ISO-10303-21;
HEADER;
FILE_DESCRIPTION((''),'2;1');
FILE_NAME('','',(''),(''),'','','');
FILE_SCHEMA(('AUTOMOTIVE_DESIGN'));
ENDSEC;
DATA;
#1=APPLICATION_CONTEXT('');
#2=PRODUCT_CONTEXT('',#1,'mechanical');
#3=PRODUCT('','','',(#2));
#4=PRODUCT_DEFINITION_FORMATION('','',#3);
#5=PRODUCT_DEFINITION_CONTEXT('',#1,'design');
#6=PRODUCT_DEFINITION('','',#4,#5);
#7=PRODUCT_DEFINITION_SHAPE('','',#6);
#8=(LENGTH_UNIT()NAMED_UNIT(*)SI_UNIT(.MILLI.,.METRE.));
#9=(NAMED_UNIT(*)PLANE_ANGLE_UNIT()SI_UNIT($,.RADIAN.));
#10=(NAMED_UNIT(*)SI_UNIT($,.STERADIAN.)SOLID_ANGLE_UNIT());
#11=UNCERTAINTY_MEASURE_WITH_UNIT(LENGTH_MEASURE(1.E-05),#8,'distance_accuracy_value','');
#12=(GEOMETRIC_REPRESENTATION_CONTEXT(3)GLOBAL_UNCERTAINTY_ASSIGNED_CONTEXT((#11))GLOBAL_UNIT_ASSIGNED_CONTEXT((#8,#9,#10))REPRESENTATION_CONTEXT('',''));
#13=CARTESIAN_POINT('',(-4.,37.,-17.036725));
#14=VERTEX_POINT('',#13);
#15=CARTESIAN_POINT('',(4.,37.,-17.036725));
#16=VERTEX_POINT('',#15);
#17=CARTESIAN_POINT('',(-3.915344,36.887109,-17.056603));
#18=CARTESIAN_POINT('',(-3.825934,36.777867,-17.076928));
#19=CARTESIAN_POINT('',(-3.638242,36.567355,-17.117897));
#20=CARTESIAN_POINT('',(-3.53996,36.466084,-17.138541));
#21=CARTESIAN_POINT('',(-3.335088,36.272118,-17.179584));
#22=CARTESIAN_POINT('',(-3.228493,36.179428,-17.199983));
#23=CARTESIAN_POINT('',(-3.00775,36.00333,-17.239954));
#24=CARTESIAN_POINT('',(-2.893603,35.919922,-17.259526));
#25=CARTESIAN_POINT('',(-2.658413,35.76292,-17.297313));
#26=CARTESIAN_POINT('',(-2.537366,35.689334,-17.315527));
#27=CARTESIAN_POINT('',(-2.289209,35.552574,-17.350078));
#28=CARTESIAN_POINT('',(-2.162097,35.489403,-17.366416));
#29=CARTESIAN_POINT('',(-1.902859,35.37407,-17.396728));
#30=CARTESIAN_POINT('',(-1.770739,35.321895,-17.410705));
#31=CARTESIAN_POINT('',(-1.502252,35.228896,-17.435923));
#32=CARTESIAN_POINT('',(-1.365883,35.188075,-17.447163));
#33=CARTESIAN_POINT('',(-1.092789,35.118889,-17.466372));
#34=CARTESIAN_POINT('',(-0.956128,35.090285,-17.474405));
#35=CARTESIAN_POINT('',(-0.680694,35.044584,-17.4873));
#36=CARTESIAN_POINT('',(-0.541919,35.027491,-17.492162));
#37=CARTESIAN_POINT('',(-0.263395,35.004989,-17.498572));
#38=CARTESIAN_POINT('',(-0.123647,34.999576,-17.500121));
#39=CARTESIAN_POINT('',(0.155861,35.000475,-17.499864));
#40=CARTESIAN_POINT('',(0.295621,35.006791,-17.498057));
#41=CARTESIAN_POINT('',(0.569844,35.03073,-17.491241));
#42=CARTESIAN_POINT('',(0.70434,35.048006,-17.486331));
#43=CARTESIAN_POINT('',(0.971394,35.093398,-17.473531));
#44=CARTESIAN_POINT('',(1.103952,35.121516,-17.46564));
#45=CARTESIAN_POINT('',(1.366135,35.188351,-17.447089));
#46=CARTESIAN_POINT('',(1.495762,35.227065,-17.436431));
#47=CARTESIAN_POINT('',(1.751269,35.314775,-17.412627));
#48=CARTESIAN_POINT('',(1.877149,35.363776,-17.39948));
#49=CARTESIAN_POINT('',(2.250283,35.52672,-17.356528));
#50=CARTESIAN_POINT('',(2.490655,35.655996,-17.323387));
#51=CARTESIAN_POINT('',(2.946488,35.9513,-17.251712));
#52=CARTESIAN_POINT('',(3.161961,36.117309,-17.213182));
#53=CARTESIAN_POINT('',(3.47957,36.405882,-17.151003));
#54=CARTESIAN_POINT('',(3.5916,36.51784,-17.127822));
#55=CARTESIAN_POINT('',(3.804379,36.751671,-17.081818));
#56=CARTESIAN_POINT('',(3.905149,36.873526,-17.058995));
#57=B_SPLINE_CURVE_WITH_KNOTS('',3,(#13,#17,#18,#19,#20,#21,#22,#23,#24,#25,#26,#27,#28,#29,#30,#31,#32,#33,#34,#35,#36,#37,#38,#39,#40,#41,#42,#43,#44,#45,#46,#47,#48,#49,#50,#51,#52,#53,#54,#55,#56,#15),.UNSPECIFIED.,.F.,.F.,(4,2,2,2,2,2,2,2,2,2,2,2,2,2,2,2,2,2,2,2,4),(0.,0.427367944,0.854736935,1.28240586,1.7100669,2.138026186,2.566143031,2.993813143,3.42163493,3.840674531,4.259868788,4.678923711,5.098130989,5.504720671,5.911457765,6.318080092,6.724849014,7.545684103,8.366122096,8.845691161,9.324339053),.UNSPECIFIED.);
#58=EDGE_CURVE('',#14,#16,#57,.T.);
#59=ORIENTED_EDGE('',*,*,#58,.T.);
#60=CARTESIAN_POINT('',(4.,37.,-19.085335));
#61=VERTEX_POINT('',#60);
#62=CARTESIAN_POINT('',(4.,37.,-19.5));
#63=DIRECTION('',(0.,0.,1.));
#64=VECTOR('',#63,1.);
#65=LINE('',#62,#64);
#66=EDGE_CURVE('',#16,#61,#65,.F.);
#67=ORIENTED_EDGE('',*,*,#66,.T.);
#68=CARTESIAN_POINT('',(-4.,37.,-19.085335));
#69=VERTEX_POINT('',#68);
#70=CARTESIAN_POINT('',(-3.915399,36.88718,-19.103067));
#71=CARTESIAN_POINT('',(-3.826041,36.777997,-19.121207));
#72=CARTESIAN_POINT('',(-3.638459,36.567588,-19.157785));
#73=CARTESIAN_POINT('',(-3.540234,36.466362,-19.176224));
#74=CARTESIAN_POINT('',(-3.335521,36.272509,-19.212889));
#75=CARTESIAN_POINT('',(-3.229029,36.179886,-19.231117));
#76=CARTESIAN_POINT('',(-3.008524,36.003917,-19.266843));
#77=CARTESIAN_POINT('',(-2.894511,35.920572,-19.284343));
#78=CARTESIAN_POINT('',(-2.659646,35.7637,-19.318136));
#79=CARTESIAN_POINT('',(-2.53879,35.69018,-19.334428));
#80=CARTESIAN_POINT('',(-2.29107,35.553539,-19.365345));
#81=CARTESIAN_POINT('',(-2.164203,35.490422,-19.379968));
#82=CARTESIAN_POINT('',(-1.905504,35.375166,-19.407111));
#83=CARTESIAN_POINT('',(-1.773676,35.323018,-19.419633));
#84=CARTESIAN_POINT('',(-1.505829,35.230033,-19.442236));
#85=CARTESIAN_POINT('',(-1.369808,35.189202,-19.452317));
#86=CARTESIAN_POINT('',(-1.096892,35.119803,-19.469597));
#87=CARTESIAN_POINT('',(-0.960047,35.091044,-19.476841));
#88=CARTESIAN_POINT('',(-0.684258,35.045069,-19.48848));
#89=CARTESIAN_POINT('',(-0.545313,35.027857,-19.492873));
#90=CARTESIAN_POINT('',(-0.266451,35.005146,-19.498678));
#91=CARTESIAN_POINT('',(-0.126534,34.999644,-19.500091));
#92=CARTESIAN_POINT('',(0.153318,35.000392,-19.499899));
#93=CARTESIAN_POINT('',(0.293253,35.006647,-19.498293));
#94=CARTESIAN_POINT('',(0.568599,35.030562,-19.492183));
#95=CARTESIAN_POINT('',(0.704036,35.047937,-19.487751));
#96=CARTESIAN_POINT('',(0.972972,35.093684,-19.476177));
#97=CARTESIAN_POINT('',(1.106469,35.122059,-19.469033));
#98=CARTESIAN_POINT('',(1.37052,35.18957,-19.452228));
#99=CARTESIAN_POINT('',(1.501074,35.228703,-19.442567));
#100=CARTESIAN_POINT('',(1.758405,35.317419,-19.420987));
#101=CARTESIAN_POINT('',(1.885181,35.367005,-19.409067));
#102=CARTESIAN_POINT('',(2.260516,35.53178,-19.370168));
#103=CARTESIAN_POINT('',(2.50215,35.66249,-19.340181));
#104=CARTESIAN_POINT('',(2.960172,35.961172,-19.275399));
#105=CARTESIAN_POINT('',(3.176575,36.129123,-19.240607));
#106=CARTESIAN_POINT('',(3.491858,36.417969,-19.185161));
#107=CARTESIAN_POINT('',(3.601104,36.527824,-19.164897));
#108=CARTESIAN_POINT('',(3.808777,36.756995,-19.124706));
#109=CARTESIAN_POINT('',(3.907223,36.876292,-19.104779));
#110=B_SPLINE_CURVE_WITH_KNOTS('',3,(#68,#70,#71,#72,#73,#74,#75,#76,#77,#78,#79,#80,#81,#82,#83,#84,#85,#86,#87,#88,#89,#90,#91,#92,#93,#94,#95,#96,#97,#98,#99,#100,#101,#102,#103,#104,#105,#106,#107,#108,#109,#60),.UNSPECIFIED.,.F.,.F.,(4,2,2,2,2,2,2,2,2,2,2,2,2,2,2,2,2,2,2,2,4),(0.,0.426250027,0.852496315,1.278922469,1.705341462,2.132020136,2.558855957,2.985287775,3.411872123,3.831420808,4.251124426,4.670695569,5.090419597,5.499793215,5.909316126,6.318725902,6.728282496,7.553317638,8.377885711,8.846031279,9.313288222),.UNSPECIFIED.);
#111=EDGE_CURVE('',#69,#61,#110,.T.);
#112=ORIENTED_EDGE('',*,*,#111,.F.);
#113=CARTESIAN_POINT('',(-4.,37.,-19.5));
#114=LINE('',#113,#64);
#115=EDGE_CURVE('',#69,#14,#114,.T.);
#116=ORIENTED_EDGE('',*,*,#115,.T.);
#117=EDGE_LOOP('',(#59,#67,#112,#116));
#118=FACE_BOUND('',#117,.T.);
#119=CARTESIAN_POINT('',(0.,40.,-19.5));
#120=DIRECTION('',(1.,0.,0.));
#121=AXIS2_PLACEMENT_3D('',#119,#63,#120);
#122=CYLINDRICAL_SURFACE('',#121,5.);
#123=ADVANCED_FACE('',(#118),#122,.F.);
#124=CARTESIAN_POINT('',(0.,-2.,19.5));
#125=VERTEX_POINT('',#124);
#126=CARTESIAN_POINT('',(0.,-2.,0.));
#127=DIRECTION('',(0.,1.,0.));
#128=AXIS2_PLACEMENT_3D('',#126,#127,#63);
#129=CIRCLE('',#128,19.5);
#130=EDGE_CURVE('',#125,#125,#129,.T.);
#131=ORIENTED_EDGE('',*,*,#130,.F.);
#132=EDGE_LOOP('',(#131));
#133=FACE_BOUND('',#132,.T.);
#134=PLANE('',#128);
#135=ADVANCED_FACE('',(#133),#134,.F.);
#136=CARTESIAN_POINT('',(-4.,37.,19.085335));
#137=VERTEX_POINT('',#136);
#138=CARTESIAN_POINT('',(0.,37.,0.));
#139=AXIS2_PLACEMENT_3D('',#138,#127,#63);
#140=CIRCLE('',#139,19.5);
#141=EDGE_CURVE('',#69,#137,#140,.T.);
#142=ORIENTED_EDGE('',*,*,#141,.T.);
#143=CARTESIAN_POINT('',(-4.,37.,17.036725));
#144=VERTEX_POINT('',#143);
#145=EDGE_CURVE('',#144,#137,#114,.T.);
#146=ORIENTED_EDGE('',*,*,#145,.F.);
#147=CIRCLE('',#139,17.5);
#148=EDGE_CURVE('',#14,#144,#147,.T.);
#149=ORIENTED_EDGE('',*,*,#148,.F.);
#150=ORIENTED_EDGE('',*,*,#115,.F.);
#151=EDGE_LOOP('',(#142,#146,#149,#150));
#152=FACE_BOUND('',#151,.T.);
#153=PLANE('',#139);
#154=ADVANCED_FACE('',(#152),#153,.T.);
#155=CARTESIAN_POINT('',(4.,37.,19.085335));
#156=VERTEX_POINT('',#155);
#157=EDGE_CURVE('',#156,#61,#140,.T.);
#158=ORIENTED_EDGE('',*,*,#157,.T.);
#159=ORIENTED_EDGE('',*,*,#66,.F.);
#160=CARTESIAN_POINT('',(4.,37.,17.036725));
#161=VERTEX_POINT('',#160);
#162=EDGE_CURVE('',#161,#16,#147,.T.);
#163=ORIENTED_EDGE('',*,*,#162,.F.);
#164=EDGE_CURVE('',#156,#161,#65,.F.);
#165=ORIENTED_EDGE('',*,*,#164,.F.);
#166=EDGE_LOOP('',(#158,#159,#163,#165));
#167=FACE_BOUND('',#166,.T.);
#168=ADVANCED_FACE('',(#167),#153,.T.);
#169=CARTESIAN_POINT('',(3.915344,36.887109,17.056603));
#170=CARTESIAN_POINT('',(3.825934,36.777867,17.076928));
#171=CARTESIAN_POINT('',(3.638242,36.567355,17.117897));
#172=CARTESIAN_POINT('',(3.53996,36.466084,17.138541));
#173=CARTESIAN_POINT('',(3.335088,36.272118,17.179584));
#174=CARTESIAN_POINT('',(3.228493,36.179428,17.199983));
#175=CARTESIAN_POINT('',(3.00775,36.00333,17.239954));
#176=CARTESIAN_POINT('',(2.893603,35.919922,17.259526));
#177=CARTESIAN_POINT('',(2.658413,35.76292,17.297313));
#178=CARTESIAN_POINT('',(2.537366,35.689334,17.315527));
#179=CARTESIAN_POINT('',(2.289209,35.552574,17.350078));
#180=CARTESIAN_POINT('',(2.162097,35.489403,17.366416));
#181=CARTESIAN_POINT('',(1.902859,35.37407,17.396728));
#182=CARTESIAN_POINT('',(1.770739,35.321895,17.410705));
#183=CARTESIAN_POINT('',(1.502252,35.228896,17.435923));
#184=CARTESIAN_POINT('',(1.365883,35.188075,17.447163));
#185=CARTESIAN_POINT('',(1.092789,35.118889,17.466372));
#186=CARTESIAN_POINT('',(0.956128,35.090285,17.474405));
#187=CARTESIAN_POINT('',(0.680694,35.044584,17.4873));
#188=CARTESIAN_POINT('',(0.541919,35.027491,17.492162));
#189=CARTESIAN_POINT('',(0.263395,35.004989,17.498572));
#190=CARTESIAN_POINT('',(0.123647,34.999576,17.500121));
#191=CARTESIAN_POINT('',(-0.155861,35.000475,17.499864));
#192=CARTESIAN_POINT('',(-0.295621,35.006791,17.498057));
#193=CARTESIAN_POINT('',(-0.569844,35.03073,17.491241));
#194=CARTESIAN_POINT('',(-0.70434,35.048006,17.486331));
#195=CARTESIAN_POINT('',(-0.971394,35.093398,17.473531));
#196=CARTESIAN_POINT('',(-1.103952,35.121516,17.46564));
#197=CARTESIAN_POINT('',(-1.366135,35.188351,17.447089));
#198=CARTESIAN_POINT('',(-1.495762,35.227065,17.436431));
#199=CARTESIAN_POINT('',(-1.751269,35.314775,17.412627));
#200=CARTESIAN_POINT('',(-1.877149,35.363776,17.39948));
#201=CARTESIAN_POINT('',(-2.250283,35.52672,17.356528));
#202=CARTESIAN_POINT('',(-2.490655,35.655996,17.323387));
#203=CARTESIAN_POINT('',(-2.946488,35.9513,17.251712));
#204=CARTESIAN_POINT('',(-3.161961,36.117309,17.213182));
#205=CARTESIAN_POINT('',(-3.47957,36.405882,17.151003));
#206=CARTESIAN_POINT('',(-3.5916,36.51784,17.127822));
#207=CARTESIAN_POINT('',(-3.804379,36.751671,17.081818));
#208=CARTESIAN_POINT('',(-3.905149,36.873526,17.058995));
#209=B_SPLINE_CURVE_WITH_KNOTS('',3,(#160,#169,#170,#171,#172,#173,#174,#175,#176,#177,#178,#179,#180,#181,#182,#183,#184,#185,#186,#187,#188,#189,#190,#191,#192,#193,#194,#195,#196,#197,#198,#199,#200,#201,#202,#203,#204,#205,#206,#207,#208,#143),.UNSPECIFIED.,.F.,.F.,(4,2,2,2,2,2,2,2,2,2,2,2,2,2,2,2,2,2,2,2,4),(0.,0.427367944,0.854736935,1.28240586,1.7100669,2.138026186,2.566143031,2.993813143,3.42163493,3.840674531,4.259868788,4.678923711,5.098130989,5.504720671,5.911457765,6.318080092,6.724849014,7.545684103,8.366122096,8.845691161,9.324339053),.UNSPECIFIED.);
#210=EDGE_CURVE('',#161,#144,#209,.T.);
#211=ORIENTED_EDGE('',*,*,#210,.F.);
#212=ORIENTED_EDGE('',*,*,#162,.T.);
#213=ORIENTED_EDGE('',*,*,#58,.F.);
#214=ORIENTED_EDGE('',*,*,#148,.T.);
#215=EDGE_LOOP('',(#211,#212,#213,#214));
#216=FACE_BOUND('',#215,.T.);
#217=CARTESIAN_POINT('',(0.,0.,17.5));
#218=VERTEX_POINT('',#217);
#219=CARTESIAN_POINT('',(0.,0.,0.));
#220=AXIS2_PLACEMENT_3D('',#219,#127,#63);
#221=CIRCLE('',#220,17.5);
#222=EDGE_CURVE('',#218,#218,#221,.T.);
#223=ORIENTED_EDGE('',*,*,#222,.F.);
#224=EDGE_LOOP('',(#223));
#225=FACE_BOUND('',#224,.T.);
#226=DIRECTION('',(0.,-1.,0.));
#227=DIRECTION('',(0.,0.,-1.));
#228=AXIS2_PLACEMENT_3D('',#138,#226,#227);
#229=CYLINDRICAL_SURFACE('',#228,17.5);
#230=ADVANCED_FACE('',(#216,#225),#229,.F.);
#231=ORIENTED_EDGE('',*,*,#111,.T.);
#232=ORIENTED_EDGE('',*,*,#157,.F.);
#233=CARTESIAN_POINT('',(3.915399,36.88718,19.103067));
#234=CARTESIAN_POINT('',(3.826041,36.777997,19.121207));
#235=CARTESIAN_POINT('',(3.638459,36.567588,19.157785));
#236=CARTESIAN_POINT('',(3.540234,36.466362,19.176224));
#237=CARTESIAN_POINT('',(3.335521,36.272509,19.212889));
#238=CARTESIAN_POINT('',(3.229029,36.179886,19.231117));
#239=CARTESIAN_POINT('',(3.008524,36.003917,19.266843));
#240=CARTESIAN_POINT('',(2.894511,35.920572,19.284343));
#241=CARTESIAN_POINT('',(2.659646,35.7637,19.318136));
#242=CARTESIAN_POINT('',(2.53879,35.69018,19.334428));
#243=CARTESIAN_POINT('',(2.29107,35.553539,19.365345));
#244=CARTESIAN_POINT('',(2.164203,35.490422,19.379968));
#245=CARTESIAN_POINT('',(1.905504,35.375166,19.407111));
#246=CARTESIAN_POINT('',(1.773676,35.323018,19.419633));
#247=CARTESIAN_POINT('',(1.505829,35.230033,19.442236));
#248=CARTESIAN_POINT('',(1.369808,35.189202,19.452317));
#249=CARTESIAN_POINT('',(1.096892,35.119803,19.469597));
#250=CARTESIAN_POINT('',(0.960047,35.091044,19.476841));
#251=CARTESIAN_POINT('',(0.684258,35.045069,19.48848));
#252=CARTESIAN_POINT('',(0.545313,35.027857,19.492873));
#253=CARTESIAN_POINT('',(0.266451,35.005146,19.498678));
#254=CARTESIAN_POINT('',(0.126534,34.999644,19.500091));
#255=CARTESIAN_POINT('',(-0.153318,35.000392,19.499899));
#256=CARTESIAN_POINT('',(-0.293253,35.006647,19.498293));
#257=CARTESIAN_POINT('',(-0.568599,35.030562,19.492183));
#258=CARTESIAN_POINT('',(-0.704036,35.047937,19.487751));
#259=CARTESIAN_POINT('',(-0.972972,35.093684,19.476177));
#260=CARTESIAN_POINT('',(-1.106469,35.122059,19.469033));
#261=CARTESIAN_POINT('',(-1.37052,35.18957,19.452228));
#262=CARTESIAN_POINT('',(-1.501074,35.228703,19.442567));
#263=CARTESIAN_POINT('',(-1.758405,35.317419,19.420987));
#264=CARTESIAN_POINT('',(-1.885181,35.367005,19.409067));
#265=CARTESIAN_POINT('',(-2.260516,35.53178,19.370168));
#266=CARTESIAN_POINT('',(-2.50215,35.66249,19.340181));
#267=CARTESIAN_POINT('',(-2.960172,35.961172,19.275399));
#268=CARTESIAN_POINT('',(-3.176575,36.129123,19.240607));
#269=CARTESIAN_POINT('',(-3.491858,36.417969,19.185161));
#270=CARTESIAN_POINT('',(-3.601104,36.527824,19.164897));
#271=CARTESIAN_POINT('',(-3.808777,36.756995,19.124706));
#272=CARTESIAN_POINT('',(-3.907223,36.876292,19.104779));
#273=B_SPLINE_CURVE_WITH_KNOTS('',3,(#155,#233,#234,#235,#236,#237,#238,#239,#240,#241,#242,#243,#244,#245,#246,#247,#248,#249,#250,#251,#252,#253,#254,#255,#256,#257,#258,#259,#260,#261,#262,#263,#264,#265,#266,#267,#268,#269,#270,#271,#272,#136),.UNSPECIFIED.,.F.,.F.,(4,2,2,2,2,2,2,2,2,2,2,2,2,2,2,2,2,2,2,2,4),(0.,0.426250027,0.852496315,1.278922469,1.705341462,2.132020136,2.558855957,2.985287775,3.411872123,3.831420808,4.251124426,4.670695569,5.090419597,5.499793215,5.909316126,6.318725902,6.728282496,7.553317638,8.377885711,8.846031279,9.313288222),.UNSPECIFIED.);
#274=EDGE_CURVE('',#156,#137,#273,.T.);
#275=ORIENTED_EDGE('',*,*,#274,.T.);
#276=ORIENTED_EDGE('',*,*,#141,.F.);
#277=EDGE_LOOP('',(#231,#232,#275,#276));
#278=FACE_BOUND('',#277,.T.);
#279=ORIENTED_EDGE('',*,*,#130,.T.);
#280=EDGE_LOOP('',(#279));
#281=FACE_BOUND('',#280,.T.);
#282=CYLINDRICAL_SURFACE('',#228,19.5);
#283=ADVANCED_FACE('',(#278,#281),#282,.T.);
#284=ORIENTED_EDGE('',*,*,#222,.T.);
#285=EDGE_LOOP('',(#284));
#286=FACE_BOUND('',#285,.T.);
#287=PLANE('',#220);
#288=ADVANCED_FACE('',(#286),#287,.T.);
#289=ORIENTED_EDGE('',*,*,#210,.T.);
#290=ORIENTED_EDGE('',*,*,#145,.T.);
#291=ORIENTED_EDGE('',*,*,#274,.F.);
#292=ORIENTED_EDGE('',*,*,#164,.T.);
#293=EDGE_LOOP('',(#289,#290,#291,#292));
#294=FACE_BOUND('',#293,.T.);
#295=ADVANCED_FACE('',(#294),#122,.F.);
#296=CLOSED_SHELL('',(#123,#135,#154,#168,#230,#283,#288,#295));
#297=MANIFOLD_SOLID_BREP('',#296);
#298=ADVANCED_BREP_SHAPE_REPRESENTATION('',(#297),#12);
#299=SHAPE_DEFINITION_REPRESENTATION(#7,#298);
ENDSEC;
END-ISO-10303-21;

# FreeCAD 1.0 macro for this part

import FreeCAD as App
import Part
import Sketcher
from FreeCAD import Vector
Q = App.Units.Quantity

doc = App.newDocument("Part")
body = doc.addObject("PartDesign::Body", "Body")

sketch1 = body.newObject("Sketcher::SketchObject", "Sketch")
sketch1.AttachmentSupport = (doc.getObject("XZ_Plane"), [""])
sketch1.MapMode = "FlatFace"
sketch1.addGeometry([
    Part.Circle(Vector(0, 0, 0), Vector(0, 0, 1), 19.5),
    Part.Circle(Vector(0, 0, 0), Vector(0, 0, 1), 17.5),
], False)
sketch1.addConstraint([
    Sketcher.Constraint("Coincident", 0, 3, -1, 1),
    Sketcher.Constraint("Coincident", 1, 3, -1, 1),
    Sketcher.Constraint("Diameter", 0, Q("39 mm")),
    Sketcher.Constraint("Diameter", 1, Q("35 mm")),
])
pad1 = body.newObject("PartDesign::Pad", "Pad")
pad1.Profile = sketch1
pad1.Length = 37
pad1.Reversed = True

sketch2 = body.newObject("Sketcher::SketchObject", "Sketch001")
sketch2.AttachmentSupport = (doc.getObject("XZ_Plane"), [""])
sketch2.MapMode = "FlatFace"
sketch2.AttachmentOffset = App.Placement(Vector(0, 0, 2), App.Rotation())
sketch2.addGeometry(Part.Circle(Vector(0, 0, 0), Vector(0, 0, 1), 19.5), False)
sketch2.addConstraint([
    Sketcher.Constraint("Coincident", 0, 3, -1, 1),
    Sketcher.Constraint("Diameter", 0, Q("39 mm")),
])
pad2 = body.newObject("PartDesign::Pad", "Pad001")
pad2.Profile = sketch2
pad2.Length = 2
pad2.Reversed = True

sketch3 = body.newObject("Sketcher::SketchObject", "Sketch002")
sketch3.AttachmentSupport = (doc.getObject("XY_Plane"), [""])
sketch3.MapMode = "FlatFace"
sketch3.addGeometry(Part.Circle(Vector(0, 40, 0), Vector(0, 0, 1), 5), False)
sketch3.addConstraint([
    Sketcher.Constraint("PointOnObject", 0, 3, -2),
    Sketcher.Constraint("Diameter", 0, Q("10 mm")),
    Sketcher.Constraint("DistanceY", -1, 1, 0, 3, Q("40 mm")),
])
pocket1 = body.newObject("PartDesign::Pocket", "Pocket")
pocket1.Profile = sketch3
pocket1.Type = "ThroughAll"
pocket1.Midplane = True

doc.recompute()
